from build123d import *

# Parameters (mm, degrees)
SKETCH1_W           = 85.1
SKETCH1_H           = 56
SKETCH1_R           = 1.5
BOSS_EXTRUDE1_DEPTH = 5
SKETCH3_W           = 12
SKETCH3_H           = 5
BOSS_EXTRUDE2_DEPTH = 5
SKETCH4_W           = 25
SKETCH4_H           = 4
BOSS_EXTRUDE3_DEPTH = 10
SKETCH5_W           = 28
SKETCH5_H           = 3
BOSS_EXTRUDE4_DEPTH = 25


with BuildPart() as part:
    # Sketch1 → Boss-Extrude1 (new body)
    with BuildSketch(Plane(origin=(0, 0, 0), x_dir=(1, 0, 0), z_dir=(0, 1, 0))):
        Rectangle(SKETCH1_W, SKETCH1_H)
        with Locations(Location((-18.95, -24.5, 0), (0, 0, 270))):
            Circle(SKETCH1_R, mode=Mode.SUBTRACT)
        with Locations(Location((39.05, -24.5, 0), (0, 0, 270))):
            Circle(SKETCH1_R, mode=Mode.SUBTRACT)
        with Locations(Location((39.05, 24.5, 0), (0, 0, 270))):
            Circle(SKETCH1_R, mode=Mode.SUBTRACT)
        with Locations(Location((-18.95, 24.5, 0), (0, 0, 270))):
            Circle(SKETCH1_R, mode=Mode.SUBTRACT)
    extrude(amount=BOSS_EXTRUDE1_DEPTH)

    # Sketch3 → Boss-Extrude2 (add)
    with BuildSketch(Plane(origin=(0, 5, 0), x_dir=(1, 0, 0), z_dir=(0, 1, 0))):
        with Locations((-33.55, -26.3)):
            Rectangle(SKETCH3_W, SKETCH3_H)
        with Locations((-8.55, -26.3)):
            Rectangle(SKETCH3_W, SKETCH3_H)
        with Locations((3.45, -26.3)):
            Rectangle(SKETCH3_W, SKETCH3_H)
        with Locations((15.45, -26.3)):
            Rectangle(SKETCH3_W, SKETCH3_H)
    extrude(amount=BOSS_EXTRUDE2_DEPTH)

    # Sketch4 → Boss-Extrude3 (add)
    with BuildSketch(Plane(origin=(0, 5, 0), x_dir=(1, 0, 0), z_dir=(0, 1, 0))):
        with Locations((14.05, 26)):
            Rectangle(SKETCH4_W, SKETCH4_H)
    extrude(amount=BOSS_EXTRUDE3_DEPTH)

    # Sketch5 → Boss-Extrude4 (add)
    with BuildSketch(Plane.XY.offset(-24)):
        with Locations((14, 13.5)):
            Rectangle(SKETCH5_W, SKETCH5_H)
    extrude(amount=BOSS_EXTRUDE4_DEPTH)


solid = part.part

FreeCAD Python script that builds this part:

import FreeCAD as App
import Part
import Sketcher
Q = App.Units.Quantity

doc = App.newDocument("Part")
params = doc.addObject("Spreadsheet::Sheet", "Params")
for row, (alias, value) in enumerate([
    ("sketch1_diameter", "3 mm"),
    ("sketch1_height", "56 mm"),
    ("sketch1_width", "85.1 mm"),
    ("pad1_length", "5 mm"),
    ("sketch2_width", "12 mm"),
    ("sketch2_width2", "36 mm"),
    ("sketch2_height", "5 mm"),
    ("pad2_length", "5 mm"),
    ("sketch3_width", "25 mm"),
    ("sketch3_height", "4 mm"),
    ("pad3_length", "10 mm"),
    ("sketch4_width", "28 mm"),
    ("sketch4_height", "3 mm"),
    ("pad4_length", "25 mm"),
], start=1):
    params.set(f"A{row}", alias)
    params.set(f"B{row}", "=" + value)
    params.setAlias(f"B{row}", alias)

body = doc.addObject("PartDesign::Body", "Body")

sketch1 = body.newObject("Sketcher::SketchObject", "Sketch")
sketch1.AttachmentSupport = (doc.getObject("XZ_Plane"), [""])
sketch1.MapMode = "FlatFace"
sketch1.addGeometry([
    Part.LineSegment(App.Vector(-42.5, -28, 0), App.Vector(-42.5, 28, 0)),
    Part.LineSegment(App.Vector(-42.5, 28, 0), App.Vector(42.5, 28, 0)),
    Part.LineSegment(App.Vector(42.5, 28, 0), App.Vector(42.5, -28, 0)),
    Part.LineSegment(App.Vector(42.5, -28, 0), App.Vector(-42.5, -28, 0)),
    Part.Circle(App.Vector(-18.9, 24.5, 0), App.Vector(0, 0, 1), 1.5),
    Part.Circle(App.Vector(39, 24.5, 0), App.Vector(0, 0, 1), 1.5),
    Part.Circle(App.Vector(-18.9, -24.5, 0), App.Vector(0, 0, 1), 1.5),
    Part.Circle(App.Vector(39, -24.5, 0), App.Vector(0, 0, 1), 1.5),
], False)
sketch1.addConstraint([
    Sketcher.Constraint("Coincident", 0, 2, 1, 1),
    Sketcher.Constraint("Coincident", 1, 2, 2, 1),
    Sketcher.Constraint("Coincident", 2, 2, 3, 1),
    Sketcher.Constraint("Coincident", 3, 2, 0, 1),
    Sketcher.Constraint("Vertical", 0),
    Sketcher.Constraint("Horizontal", 1),
    Sketcher.Constraint("Vertical", 2),
    Sketcher.Constraint("Horizontal", 3),
    Sketcher.Constraint("Equal", 4, 5),
    Sketcher.Constraint("Equal", 5, 6),
    Sketcher.Constraint("Equal", 6, 7),
    Sketcher.Constraint("Symmetric", 0, 2, 2, 2, -1, 1),
    Sketcher.Constraint("Symmetric", 4, 3, 6, 3, -1),
    Sketcher.Constraint("Symmetric", 5, 3, 7, 3, -1),
    Sketcher.Constraint("Horizontal", 4, 3, 5, 3),
    Sketcher.Constraint("Diameter", 4, Q("3 mm")),
    Sketcher.Constraint("DistanceY", 0, 1, 0, 2, Q("56 mm")),
    Sketcher.Constraint("DistanceX", 1, 1, 1, 2, Q("85.1 mm")),
    Sketcher.Constraint("DistanceX", 4, 3, 5, 3, Q("58 mm")),
    Sketcher.Constraint("DistanceY", 6, 3, 4, 3, Q("49 mm")),
    Sketcher.Constraint("DistanceX", 0, 2, 4, 3, Q("23.6 mm")),
])
sketch1.setExpression("Constraints[15]", "Params.sketch1_diameter")
sketch1.setExpression("Constraints[16]", "Params.sketch1_height")
sketch1.setExpression("Constraints[17]", "Params.sketch1_width")
pad1 = body.newObject("PartDesign::Pad", "Pad")
pad1.Profile = sketch1
pad1.setExpression("Length", "Params.pad1_length")
pad1.Reversed = True

sketch2 = body.newObject("Sketcher::SketchObject", "Sketch001")
sketch2.AttachmentSupport = (doc.getObject("XZ_Plane"), [""])
sketch2.MapMode = "FlatFace"
sketch2.AttachmentOffset = App.Placement(App.Vector(0, 0, -5), App.Rotation())
sketch2.addGeometry([
    Part.LineSegment(App.Vector(-40, 24, 0), App.Vector(-40, 29, 0)),
    Part.LineSegment(App.Vector(-40, 29, 0), App.Vector(-28, 29, 0)),
    Part.LineSegment(App.Vector(-28, 29, 0), App.Vector(-28, 24, 0)),
    Part.LineSegment(App.Vector(-28, 24, 0), App.Vector(-40, 24, 0)),
    Part.LineSegment(App.Vector(-15, 24, 0), App.Vector(-15, 29, 0)),
    Part.LineSegment(App.Vector(-15, 29, 0), App.Vector(21, 29, 0)),
    Part.LineSegment(App.Vector(21, 29, 0), App.Vector(21, 24, 0)),
    Part.LineSegment(App.Vector(21, 24, 0), App.Vector(-15, 24, 0)),
], False)
sketch2.addConstraint([
    Sketcher.Constraint("Coincident", 0, 2, 1, 1),
    Sketcher.Constraint("Coincident", 1, 2, 2, 1),
    Sketcher.Constraint("Coincident", 2, 2, 3, 1),
    Sketcher.Constraint("Coincident", 3, 2, 0, 1),
    Sketcher.Constraint("Coincident", 4, 2, 5, 1),
    Sketcher.Constraint("Coincident", 5, 2, 6, 1),
    Sketcher.Constraint("Coincident", 6, 2, 7, 1),
    Sketcher.Constraint("Coincident", 7, 2, 4, 1),
    Sketcher.Constraint("Vertical", 0),
    Sketcher.Constraint("Horizontal", 1),
    Sketcher.Constraint("Vertical", 2),
    Sketcher.Constraint("Horizontal", 3),
    Sketcher.Constraint("Vertical", 4),
    Sketcher.Constraint("Horizontal", 5),
    Sketcher.Constraint("Vertical", 6),
    Sketcher.Constraint("Horizontal", 7),
    Sketcher.Constraint("Horizontal", 1, 2, 4, 2),
    Sketcher.Constraint("Horizontal", 3, 2, 6, 2),
    Sketcher.Constraint("DistanceX", 1, 1, 1, 2, Q("12 mm")),
    Sketcher.Constraint("DistanceX", 5, 1, 5, 2, Q("36 mm")),
    Sketcher.Constraint("DistanceY", 0, 1, 0, 2, Q("5 mm")),
    Sketcher.Constraint("DistanceX", 1, 2, 4, 2, Q("13 mm")),
    Sketcher.Constraint("DistanceY", -1, 1, 0, 2, Q("28.8 mm")),
    Sketcher.Constraint("DistanceX", 0, 2, -1, 1, Q("39.55 mm")),
])
sketch2.setExpression("Constraints[18]", "Params.sketch2_width")
sketch2.setExpression("Constraints[19]", "Params.sketch2_width2")
sketch2.setExpression("Constraints[20]", "Params.sketch2_height")
pad2 = body.newObject("PartDesign::Pad", "Pad001")
pad2.Profile = sketch2
pad2.setExpression("Length", "Params.pad2_length")
pad2.Reversed = True

sketch3 = body.newObject("Sketcher::SketchObject", "Sketch002")
sketch3.AttachmentSupport = (doc.getObject("XZ_Plane"), [""])
sketch3.MapMode = "FlatFace"
sketch3.AttachmentOffset = App.Placement(App.Vector(0, 0, -5), App.Rotation())
sketch3.addGeometry([
    Part.LineSegment(App.Vector(1.6, -28, 0), App.Vector(1.6, -24, 0)),
    Part.LineSegment(App.Vector(1.6, -24, 0), App.Vector(26.6, -24, 0)),
    Part.LineSegment(App.Vector(26.6, -24, 0), App.Vector(26.6, -28, 0)),
    Part.LineSegment(App.Vector(26.6, -28, 0), App.Vector(1.6, -28, 0)),
], False)
sketch3.addConstraint([
    Sketcher.Constraint("Coincident", 0, 2, 1, 1),
    Sketcher.Constraint("Coincident", 1, 2, 2, 1),
    Sketcher.Constraint("Coincident", 2, 2, 3, 1),
    Sketcher.Constraint("Coincident", 3, 2, 0, 1),
    Sketcher.Constraint("Vertical", 0),
    Sketcher.Constraint("Horizontal", 1),
    Sketcher.Constraint("Vertical", 2),
    Sketcher.Constraint("Horizontal", 3),
    Sketcher.Constraint("DistanceX", 1, 1, 1, 2, Q("25 mm")),
    Sketcher.Constraint("DistanceY", 0, 1, 0, 2, Q("4 mm")),
    Sketcher.Constraint("DistanceY", 0, 2, -1, 1, Q("24 mm")),
    Sketcher.Constraint("DistanceX", -1, 1, 0, 2, Q("1.55 mm")),
])
sketch3.setExpression("Constraints[8]", "Params.sketch3_width")
sketch3.setExpression("Constraints[9]", "Params.sketch3_height")
pad3 = body.newObject("PartDesign::Pad", "Pad002")
pad3.Profile = sketch3
pad3.setExpression("Length", "Params.pad3_length")
pad3.Reversed = True

sketch4 = body.newObject("Sketcher::SketchObject", "Sketch003")
sketch4.AttachmentSupport = (doc.getObject("XY_Plane"), [""])
sketch4.MapMode = "FlatFace"
sketch4.AttachmentOffset = App.Placement(App.Vector(0, 0, -24), App.Rotation())
sketch4.addGeometry([
    Part.LineSegment(App.Vector(0, 15, 0), App.Vector(0, 12, 0)),
    Part.LineSegment(App.Vector(0, 12, 0), App.Vector(28, 12, 0)),
    Part.LineSegment(App.Vector(28, 12, 0), App.Vector(28, 15, 0)),
    Part.LineSegment(App.Vector(28, 15, 0), App.Vector(0, 15, 0)),
], False)
sketch4.addConstraint([
    Sketcher.Constraint("Coincident", 0, 2, 1, 1),
    Sketcher.Constraint("Coincident", 1, 2, 2, 1),
    Sketcher.Constraint("Coincident", 2, 2, 3, 1),
    Sketcher.Constraint("Coincident", 3, 2, 0, 1),
    Sketcher.Constraint("Vertical", 0),
    Sketcher.Constraint("Horizontal", 1),
    Sketcher.Constraint("Vertical", 2),
    Sketcher.Constraint("Horizontal", 3),
    Sketcher.Constraint("PointOnObject", 0, 2, -2),
    Sketcher.Constraint("DistanceX", 1, 1, 1, 2, Q("28 mm")),
    Sketcher.Constraint("DistanceY", 0, 2, 0, 1, Q("3 mm")),
    Sketcher.Constraint("DistanceY", -1, 1, 0, 2, Q("12 mm")),
])
sketch4.setExpression("Constraints[9]", "Params.sketch4_width")
sketch4.setExpression("Constraints[10]", "Params.sketch4_height")
pad4 = body.newObject("PartDesign::Pad", "Pad003")
pad4.Profile = sketch4
pad4.setExpression("Length", "Params.pad4_length")

doc.recompute()
